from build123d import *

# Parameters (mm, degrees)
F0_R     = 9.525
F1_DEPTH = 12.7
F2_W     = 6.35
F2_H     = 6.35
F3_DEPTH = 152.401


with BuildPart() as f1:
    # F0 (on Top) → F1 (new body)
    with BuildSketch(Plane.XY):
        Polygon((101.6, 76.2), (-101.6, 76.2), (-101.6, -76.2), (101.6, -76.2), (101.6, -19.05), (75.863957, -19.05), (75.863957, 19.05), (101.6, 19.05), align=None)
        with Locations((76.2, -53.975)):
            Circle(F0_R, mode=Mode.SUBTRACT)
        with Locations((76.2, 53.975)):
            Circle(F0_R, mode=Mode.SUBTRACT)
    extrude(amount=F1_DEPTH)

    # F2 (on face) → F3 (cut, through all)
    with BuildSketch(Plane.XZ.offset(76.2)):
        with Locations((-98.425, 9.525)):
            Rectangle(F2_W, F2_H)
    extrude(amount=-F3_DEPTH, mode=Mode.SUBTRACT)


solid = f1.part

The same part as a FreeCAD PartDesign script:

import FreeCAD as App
import Part
import Sketcher

V = App.Vector
Q = App.Units.Quantity


def add_polygon(sketch, points):
    """Adds a closed chain of lines whose ends are joined by coincident constraints."""
    first, n = sketch.GeometryCount, len(points)
    for a, b in zip(points, points[1:] + points[:1]):
        sketch.addGeometry(Part.LineSegment(App.Vector(*a, 0), App.Vector(*b, 0)), False)
    for i in range(n):
        sketch.addConstraint(Sketcher.Constraint("Coincident", first + i, 2, first + (i + 1) % n, 1))

doc = App.newDocument("Part")
params = doc.addObject("Spreadsheet::Sheet", "Params")
for row, (alias, value) in enumerate([
    ("sketch1_diameter", "0.75 in"),
    ("sketch1_width", "8 in"),
    ("sketch1_height", "6 in"),
    ("sketch1_height2", "1.5 in"),
    ("pad1_length", "0.5 in"),
    ("sketch2_width", "0.25 in"),
], start=1):
    params.set(f"A{row}", alias)
    params.set(f"B{row}", "=" + value)
    params.setAlias(f"B{row}", alias)

body = doc.addObject("PartDesign::Body", "Body")

# Sketch on XY plane
sketch1 = doc.addObject("Sketcher::SketchObject", "Sketch")
body.addObject(sketch1)
sketch1.AttachmentSupport = (doc.XY_Plane, [""])
sketch1.MapMode = "FlatFace"
add_polygon(sketch1, [(102, 76), (-102, 76), (-102, -76), (102, -76), (102, -19), (76, -19), (76, 19), (102, 19)])  # lines 0-7
sketch1.addGeometry(Part.Circle(V(76, -54, 0), V(0, 0, 1), 10), False)  # 8
sketch1.addGeometry(Part.Circle(V(76, 54, 0), V(0, 0, 1), 10), False)  # 9
sketch1.addConstraint([
    Sketcher.Constraint("Horizontal", 0),
    Sketcher.Constraint("Vertical", 1),
    Sketcher.Constraint("Horizontal", 2),
    Sketcher.Constraint("Vertical", 3),
    Sketcher.Constraint("Horizontal", 4),
    Sketcher.Constraint("Vertical", 5),
    Sketcher.Constraint("Horizontal", 6),
    Sketcher.Constraint("Vertical", 7),
    Sketcher.Constraint("Equal", 8, 9),
    Sketcher.Constraint("Symmetric", 0, 2, 2, 2, -1, 1),
    Sketcher.Constraint("Symmetric", 8, 3, 9, 3, -1),
    Sketcher.Constraint("Symmetric", 3, 2, 6, 2, -1),
    Sketcher.Constraint("Diameter", 8, Q("0.75 in")),
    Sketcher.Constraint("DistanceX", 0, 2, 0, 1, Q("8 in")),
    Sketcher.Constraint("DistanceY", 1, 2, 1, 1, Q("6 in")),
    Sketcher.Constraint("DistanceY", 5, 1, 5, 2, Q("1.5 in")),
    Sketcher.Constraint("DistanceX", -1, 1, 8, 3, Q("3 in")),
    Sketcher.Constraint("DistanceY", 8, 3, 9, 3, Q("4.25 in")),
    Sketcher.Constraint("DistanceX", 4, 2, 4, 1, Q("25.736043 mm")),
])
sketch1.setExpression("Constraints[20]", "Params.sketch1_diameter")
sketch1.setExpression("Constraints[21]", "Params.sketch1_width")
sketch1.setExpression("Constraints[22]", "Params.sketch1_height")
sketch1.setExpression("Constraints[23]", "Params.sketch1_height2")
pad1 = doc.addObject("PartDesign::Pad", "Pad")
body.addObject(pad1)
pad1.Profile = sketch1
pad1.setExpression("Length", "Params.pad1_length")

# Sketch on XZ plane
sketch2 = doc.addObject("Sketcher::SketchObject", "Sketch001")
body.addObject(sketch2)
sketch2.AttachmentSupport = (doc.XZ_Plane, [""])
sketch2.MapMode = "FlatFace"
sketch2.AttachmentOffset = App.Placement(V(0, 0, 3 * 25.4), App.Rotation())
add_polygon(sketch2, [(-102, 13), (-102, 6), (-95, 6), (-95, 13)])  # lines 0-3
sketch2.addConstraint([
    Sketcher.Constraint("Vertical", 0),
    Sketcher.Constraint("Horizontal", 1),
    Sketcher.Constraint("Vertical", 2),
    Sketcher.Constraint("Horizontal", 3),
    Sketcher.Constraint("Equal", 3, 0),
    Sketcher.Constraint("DistanceX", 0, 2, -1, 1, Q("4 in")),
    Sketcher.Constraint("DistanceX", 1, 1, 1, 2, Q("0.25 in")),
    Sketcher.Constraint("DistanceY", -1, 1, 2, 2, Q("0.5 in")),
])
sketch2.setExpression("Constraints[10]", "Params.sketch2_width")
pocket1 = doc.addObject("PartDesign::Pocket", "Pocket")
body.addObject(pocket1)
pocket1.Profile = sketch2
pocket1.Type = "ThroughAll"

doc.recompute()
